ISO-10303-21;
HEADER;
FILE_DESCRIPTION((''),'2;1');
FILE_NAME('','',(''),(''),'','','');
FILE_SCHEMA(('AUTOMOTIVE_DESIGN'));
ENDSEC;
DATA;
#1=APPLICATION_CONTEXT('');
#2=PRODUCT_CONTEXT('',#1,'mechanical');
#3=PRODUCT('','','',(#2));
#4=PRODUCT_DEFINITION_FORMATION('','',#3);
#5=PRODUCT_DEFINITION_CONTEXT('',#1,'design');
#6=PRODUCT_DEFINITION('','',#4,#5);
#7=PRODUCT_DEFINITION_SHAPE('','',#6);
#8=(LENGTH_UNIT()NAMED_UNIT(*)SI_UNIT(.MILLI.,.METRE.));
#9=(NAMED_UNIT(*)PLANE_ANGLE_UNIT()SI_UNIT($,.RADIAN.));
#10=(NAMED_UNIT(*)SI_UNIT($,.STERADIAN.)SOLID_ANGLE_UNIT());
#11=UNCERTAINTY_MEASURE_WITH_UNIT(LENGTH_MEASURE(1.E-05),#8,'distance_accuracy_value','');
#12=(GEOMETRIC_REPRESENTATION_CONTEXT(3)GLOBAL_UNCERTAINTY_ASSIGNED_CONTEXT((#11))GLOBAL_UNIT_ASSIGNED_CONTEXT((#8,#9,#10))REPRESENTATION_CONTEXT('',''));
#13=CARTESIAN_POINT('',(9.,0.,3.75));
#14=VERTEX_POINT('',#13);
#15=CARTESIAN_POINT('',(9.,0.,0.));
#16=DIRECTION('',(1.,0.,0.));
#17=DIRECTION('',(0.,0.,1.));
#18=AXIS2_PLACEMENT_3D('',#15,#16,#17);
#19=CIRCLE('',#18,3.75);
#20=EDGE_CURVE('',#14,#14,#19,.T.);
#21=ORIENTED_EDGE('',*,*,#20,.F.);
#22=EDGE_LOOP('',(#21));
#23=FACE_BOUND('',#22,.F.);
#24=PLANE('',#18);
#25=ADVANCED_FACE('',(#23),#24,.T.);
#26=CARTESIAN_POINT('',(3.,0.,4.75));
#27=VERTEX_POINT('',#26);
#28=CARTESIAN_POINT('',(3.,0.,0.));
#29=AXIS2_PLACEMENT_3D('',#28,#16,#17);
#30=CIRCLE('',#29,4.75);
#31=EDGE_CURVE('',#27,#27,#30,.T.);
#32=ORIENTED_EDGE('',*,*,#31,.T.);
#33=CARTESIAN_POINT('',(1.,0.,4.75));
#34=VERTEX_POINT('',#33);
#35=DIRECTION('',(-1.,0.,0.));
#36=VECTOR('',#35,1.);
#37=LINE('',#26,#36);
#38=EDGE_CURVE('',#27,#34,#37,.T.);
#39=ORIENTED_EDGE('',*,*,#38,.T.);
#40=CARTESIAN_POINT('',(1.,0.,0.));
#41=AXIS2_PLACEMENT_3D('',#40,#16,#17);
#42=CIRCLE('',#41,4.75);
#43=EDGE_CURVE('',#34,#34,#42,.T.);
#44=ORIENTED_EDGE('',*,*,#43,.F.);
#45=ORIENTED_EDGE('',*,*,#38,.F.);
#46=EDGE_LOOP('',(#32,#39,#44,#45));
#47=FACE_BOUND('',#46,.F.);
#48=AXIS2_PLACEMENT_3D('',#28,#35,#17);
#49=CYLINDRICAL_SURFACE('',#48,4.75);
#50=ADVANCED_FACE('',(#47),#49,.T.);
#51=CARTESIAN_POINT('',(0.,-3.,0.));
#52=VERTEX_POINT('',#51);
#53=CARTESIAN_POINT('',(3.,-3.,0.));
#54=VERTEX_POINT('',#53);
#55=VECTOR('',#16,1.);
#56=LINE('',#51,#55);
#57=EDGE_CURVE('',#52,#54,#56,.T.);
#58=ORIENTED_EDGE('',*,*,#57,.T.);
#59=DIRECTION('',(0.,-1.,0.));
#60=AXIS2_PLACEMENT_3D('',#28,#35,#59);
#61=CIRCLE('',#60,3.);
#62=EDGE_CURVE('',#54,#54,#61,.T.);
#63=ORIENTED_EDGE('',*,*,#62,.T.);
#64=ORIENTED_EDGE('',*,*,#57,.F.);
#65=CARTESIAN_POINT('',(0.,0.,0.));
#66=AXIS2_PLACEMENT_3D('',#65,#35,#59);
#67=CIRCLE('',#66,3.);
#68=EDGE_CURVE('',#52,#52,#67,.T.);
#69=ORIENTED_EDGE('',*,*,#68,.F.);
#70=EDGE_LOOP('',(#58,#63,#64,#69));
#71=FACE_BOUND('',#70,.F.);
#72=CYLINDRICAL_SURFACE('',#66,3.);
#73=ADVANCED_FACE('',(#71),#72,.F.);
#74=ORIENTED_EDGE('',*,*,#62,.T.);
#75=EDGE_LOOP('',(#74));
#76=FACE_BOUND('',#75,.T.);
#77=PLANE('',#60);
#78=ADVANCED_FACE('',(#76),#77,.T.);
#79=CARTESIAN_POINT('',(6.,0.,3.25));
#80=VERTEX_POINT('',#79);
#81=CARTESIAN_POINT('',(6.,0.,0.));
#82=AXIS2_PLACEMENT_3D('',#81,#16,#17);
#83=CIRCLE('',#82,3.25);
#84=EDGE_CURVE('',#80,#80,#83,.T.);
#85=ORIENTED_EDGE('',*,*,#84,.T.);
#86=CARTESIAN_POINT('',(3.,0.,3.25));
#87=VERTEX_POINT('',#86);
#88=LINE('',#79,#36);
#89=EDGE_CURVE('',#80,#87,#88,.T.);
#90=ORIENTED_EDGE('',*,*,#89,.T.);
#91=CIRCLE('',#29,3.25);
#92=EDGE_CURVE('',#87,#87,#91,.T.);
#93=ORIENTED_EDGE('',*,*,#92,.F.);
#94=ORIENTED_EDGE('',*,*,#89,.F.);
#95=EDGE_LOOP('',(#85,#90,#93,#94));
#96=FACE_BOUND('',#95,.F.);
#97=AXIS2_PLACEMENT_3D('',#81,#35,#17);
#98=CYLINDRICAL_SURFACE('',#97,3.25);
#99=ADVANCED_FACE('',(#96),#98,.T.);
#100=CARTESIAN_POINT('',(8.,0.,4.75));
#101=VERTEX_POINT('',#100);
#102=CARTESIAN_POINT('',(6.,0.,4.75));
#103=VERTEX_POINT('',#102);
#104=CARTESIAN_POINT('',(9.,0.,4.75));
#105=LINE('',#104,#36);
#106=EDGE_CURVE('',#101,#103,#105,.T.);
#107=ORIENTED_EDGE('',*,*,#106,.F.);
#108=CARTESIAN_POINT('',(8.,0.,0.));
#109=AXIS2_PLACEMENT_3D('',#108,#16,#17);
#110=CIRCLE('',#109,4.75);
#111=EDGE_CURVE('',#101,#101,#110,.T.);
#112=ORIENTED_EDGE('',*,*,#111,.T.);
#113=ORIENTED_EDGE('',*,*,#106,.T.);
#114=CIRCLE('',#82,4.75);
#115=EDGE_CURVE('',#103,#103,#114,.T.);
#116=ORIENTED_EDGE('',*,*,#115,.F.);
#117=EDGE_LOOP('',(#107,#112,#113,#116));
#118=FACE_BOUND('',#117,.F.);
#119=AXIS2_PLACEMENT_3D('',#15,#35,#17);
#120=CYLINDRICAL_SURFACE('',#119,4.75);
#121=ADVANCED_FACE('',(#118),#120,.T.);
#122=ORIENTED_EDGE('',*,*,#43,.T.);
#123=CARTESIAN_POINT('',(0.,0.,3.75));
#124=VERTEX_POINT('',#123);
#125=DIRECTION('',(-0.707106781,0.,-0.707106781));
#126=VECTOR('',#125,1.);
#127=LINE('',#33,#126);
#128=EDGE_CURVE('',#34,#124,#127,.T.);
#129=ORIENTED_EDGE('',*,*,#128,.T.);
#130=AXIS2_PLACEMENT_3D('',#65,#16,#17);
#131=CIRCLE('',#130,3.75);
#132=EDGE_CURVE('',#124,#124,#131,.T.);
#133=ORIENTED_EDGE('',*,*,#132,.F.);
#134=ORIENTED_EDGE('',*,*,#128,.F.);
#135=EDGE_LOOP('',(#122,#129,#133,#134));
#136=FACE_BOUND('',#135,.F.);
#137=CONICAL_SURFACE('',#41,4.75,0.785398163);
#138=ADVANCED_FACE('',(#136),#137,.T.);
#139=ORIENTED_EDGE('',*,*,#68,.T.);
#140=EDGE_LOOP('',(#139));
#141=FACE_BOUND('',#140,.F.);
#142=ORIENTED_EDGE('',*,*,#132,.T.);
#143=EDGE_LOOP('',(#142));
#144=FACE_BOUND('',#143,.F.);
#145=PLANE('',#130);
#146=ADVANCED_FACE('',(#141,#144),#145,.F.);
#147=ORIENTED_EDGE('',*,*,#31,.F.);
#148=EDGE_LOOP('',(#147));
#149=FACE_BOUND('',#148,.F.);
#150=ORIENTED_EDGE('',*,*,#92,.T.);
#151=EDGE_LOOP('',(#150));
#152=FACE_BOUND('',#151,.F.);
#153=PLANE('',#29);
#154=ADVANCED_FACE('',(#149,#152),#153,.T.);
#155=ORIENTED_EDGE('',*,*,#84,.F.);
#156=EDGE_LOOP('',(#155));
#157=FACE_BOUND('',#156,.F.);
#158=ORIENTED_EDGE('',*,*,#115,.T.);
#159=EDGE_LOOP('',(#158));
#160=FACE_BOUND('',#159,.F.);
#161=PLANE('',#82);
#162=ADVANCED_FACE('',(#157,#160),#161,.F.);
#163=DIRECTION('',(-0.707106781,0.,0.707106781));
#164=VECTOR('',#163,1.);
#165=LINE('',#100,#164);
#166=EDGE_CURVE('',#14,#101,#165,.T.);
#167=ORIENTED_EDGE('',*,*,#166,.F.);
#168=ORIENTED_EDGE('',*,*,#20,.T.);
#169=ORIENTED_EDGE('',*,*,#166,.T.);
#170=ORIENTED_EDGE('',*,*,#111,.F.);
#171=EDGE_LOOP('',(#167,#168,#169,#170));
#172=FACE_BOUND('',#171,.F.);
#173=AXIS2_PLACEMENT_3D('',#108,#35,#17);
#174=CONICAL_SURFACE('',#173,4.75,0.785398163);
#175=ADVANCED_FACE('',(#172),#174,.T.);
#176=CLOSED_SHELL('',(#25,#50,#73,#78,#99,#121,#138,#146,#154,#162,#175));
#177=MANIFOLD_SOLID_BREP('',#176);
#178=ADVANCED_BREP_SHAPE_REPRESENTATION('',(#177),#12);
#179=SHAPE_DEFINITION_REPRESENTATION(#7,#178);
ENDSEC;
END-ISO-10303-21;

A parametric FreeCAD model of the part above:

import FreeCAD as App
import Part
import Sketcher
from FreeCAD import Vector
Q = App.Units.Quantity


def edges_at(feature, points):
    """Names of the edges that pass closest to the given points."""
    edges = feature.Shape.Edges
    near = lambda p: min(range(len(edges)), key=lambda i: edges[i].distToShape(Part.Vertex(*p))[0])
    return sorted({f"Edge{near(p) + 1}" for p in points})


def add_polygon(sketch, points):
    """Adds a closed chain of lines whose ends are joined by coincident constraints."""
    first, n = sketch.GeometryCount, len(points)
    for a, b in zip(points, points[1:] + points[:1]):
        sketch.addGeometry(Part.LineSegment(App.Vector(*a, 0), App.Vector(*b, 0)), False)
    for i in range(n):
        sketch.addConstraint(Sketcher.Constraint("Coincident", first + i, 2, first + (i + 1) % n, 1))

doc = App.newDocument("Part")
body = doc.addObject("PartDesign::Body", "Body")

# Sketch on XZ plane
sketch1 = body.newObject("Sketcher::SketchObject", "Sketch")
sketch1.AttachmentSupport = (doc.getObject("XZ_Plane"), [""])
sketch1.MapMode = "FlatFace"
add_polygon(sketch1, [(3, 4.8), (0, 4.8), (0, 0), (9, 0), (9, 4.8), (6, 4.8), (6, 3.2), (3, 3.2)])  # lines 0-7
sketch1.addConstraint(Sketcher.Constraint("Horizontal", 0))
sketch1.addConstraint(Sketcher.Constraint("Vertical", 1))
sketch1.addConstraint(Sketcher.Constraint("Horizontal", 2))
sketch1.addConstraint(Sketcher.Constraint("Vertical", 3))
sketch1.addConstraint(Sketcher.Constraint("Horizontal", 4))
sketch1.addConstraint(Sketcher.Constraint("Vertical", 5))
sketch1.addConstraint(Sketcher.Constraint("Horizontal", 6))
sketch1.addConstraint(Sketcher.Constraint("Vertical", 7))
sketch1.addConstraint(Sketcher.Constraint("Coincident", 1, 2, -1, 1))
sketch1.addConstraint(Sketcher.Constraint("Horizontal", 0, 2, 3, 2))
sketch1.addConstraint(Sketcher.Constraint("Equal", 0, 4))
sketch1.addConstraint(Sketcher.Constraint("Equal", 4, 6))
sketch1.addConstraint(Sketcher.Constraint("DistanceX", 0, 2, 0, 1, Q("3 mm")))
sketch1.addConstraint(Sketcher.Constraint("DistanceY", 5, 2, 5, 1, Q("1.5 mm")))
sketch1.addConstraint(Sketcher.Constraint("DistanceY", 1, 2, 1, 1, Q("4.75 mm")))
revolution = body.newObject("PartDesign::Revolution", "Revolution")
revolution.Profile = sketch1
revolution.ReferenceAxis = (sketch1, ["H_Axis"])
revolution.Angle = 360
doc.recompute()

chamfer = body.newObject("PartDesign::Chamfer", "Chamfer")
chamfer.Base = (revolution, edges_at(revolution, [(0, 0, -4.75), (9, 0, -4.75)]))
chamfer.Size = 1

# Sketch on YZ plane
sketch2 = body.newObject("Sketcher::SketchObject", "Sketch001")
sketch2.AttachmentSupport = (doc.getObject("YZ_Plane"), [""])
sketch2.MapMode = "FlatFace"
sketch2.addGeometry(Part.Circle(Vector(0, 0, 0), Vector(0, 0, 1), 3), False)
sketch2.addConstraint(Sketcher.Constraint("Coincident", 0, 3, -1, 1))
sketch2.addConstraint(Sketcher.Constraint("Diameter", 0, Q("6 mm")))
pocket1 = body.newObject("PartDesign::Pocket", "Pocket")
pocket1.Profile = sketch2
pocket1.Length = 3
pocket1.Reversed = True

doc.recompute()
